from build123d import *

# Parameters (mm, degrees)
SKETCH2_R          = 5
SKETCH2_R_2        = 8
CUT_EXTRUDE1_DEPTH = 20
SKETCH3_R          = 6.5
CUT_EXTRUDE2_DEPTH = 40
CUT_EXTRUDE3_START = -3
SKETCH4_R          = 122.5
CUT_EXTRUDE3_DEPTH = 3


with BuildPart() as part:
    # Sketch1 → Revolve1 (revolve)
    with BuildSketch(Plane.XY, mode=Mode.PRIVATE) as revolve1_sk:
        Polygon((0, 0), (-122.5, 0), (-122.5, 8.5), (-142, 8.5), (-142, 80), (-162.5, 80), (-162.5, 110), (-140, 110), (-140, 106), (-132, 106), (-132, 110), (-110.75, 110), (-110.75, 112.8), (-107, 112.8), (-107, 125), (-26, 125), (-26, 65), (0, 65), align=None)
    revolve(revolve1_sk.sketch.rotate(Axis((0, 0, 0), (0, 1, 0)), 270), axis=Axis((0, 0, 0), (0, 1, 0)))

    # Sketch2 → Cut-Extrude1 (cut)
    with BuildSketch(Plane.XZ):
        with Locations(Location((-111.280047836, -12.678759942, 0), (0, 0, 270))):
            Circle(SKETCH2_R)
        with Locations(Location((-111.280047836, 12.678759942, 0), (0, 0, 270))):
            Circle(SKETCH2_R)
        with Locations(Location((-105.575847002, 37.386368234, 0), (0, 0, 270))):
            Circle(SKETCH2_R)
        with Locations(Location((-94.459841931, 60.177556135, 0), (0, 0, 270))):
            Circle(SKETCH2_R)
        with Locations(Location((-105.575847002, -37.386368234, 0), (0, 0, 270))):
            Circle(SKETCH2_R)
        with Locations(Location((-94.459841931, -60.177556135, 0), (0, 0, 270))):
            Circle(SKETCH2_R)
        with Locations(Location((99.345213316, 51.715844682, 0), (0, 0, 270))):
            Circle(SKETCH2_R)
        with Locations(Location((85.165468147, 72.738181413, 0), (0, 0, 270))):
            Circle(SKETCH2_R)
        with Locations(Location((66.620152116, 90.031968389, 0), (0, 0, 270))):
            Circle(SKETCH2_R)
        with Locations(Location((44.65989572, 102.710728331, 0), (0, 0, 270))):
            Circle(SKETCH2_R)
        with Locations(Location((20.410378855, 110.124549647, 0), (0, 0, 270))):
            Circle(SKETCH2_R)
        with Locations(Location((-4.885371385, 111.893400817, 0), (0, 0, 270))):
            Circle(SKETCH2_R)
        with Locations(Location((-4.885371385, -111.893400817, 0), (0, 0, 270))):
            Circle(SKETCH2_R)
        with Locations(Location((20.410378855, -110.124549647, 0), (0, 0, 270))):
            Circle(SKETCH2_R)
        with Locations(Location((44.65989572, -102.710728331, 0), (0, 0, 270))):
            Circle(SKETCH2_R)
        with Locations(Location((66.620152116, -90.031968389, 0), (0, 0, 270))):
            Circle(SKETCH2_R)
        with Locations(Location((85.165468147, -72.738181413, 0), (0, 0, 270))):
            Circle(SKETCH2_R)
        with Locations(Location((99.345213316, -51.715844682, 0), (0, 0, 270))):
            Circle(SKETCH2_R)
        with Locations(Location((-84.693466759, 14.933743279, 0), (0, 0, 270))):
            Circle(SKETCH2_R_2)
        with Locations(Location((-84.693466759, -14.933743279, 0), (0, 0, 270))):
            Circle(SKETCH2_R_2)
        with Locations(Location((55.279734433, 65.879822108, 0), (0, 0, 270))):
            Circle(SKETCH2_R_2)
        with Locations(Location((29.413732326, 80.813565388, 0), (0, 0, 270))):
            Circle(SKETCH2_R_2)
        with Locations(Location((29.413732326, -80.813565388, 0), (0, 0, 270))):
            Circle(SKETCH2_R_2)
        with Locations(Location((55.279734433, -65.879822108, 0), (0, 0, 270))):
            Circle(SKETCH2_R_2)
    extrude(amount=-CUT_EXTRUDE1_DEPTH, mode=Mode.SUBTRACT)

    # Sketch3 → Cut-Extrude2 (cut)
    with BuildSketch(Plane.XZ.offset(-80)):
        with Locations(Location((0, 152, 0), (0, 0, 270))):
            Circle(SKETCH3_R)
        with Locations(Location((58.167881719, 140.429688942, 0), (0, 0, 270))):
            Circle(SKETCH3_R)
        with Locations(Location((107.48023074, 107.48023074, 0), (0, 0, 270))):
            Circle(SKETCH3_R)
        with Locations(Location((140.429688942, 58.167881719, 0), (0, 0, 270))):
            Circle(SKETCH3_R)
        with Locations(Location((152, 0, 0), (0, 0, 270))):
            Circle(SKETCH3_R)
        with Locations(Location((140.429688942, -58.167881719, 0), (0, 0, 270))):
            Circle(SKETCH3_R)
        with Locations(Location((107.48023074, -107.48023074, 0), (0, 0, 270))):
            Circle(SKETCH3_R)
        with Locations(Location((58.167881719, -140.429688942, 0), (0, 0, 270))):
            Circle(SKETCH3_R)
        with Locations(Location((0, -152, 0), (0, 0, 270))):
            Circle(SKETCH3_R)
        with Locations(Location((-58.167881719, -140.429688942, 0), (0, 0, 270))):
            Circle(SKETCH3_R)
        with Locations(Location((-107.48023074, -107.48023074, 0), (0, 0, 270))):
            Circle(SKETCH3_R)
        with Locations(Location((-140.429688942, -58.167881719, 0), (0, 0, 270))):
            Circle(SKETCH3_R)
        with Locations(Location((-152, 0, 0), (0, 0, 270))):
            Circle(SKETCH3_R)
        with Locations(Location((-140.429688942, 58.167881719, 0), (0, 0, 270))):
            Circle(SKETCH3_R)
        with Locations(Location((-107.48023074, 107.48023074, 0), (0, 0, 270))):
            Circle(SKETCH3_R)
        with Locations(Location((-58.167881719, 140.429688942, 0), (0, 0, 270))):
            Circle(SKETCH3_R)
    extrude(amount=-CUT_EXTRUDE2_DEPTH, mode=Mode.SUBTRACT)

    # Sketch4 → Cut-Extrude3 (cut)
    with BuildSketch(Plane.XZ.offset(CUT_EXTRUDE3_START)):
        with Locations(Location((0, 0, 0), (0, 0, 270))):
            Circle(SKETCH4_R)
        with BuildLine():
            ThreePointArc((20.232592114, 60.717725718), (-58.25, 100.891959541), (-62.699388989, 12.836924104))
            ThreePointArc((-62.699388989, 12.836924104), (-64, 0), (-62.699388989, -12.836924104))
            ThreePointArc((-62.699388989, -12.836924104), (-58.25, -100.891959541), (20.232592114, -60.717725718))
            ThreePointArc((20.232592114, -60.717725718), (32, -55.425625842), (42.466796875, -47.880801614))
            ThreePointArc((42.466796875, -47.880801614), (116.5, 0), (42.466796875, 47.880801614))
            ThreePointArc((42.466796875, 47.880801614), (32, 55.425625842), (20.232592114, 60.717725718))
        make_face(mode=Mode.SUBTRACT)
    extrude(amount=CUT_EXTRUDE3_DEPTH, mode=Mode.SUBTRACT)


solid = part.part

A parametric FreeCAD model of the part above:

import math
import FreeCAD as App
import Part
import Sketcher

V = App.Vector

doc = App.newDocument("Part")
params = doc.addObject("Spreadsheet::Sheet", "Params")
for row, (alias, value) in enumerate([
    ("sketch1_width", "26 mm"),
    ("sketch1_width2", "81 mm"),
    ("sketch1_width3", "8 mm"),
    ("sketch1_height", "65 mm"),
    ("sketch1_height2", "60 mm"),
    ("revolution_angle", "360 deg"),
    ("sketch2_diameter", "10 mm"),
    ("sketch2_diameter2", "16 mm"),
    ("pocket1_length", "20 mm"),
    ("sketch3_diameter", "13 mm"),
    ("pocket2_length", "40 mm"),
    ("sketch4_diameter", "245 mm"),
    ("sketch4_radius", "64 mm"),
    ("sketch4_radius2", "52.5 mm"),
    ("pocket3_length", "3 mm"),
], start=1):
    params.set(f"A{row}", alias)
    params.set(f"B{row}", "=" + value)
    params.setAlias(f"B{row}", alias)

body = doc.addObject("PartDesign::Body", "Body")

# Sketch on XY plane
sketch1 = body.newObject("Sketcher::SketchObject", "Sketch")
sketch1.AttachmentSupport = (doc.getObject("XY_Plane"), [""])
sketch1.MapMode = "FlatFace"
sketch1.addGeometry(Part.LineSegment(V(-122.5, 0, 0), V(0, 0, 0)), False)
sketch1.addGeometry(Part.LineSegment(V(0, 0, 0), V(0, 65, 0)), False)
sketch1.addGeometry(Part.LineSegment(V(0, 65, 0), V(-26, 65, 0)), False)
sketch1.addGeometry(Part.LineSegment(V(-26, 65, 0), V(-26, 125, 0)), False)
sketch1.addGeometry(Part.LineSegment(V(-26, 125, 0), V(-107, 125, 0)), False)
sketch1.addGeometry(Part.LineSegment(V(-107, 125, 0), V(-107, 112.8, 0)), False)
sketch1.addGeometry(Part.LineSegment(V(-107, 112.8, 0), V(-110.75, 112.8, 0)), False)
sketch1.addGeometry(Part.LineSegment(V(-110.75, 112.8, 0), V(-110.75, 110, 0)), False)
sketch1.addGeometry(Part.LineSegment(V(-110.75, 110, 0), V(-132, 110, 0)), False)
sketch1.addGeometry(Part.LineSegment(V(-132, 110, 0), V(-132, 106, 0)), False)
sketch1.addGeometry(Part.LineSegment(V(-132, 106, 0), V(-140, 106, 0)), False)
sketch1.addGeometry(Part.LineSegment(V(-140, 106, 0), V(-140, 110, 0)), False)
sketch1.addGeometry(Part.LineSegment(V(-140, 110, 0), V(-162.5, 110, 0)), False)
sketch1.addGeometry(Part.LineSegment(V(-162.5, 110, 0), V(-162.5, 80, 0)), False)
sketch1.addGeometry(Part.LineSegment(V(-162.5, 80, 0), V(-142, 80, 0)), False)
sketch1.addGeometry(Part.LineSegment(V(-142, 80, 0), V(-142, 8.5, 0)), False)
sketch1.addGeometry(Part.LineSegment(V(-142, 8.5, 0), V(-122.5, 8.5, 0)), False)
sketch1.addGeometry(Part.LineSegment(V(-122.5, 8.5, 0), V(-122.5, 0, 0)), False)
sketch1.addConstraint(Sketcher.Constraint("Coincident", 0, 2, 1, 1))
sketch1.addConstraint(Sketcher.Constraint("Coincident", 1, 2, 2, 1))
sketch1.addConstraint(Sketcher.Constraint("Coincident", 2, 2, 3, 1))
sketch1.addConstraint(Sketcher.Constraint("Coincident", 3, 2, 4, 1))
sketch1.addConstraint(Sketcher.Constraint("Coincident", 4, 2, 5, 1))
sketch1.addConstraint(Sketcher.Constraint("Coincident", 5, 2, 6, 1))
sketch1.addConstraint(Sketcher.Constraint("Coincident", 6, 2, 7, 1))
sketch1.addConstraint(Sketcher.Constraint("Coincident", 7, 2, 8, 1))
sketch1.addConstraint(Sketcher.Constraint("Coincident", 8, 2, 9, 1))
sketch1.addConstraint(Sketcher.Constraint("Coincident", 9, 2, 10, 1))
sketch1.addConstraint(Sketcher.Constraint("Coincident", 10, 2, 11, 1))
sketch1.addConstraint(Sketcher.Constraint("Coincident", 11, 2, 12, 1))
sketch1.addConstraint(Sketcher.Constraint("Coincident", 12, 2, 13, 1))
sketch1.addConstraint(Sketcher.Constraint("Coincident", 13, 2, 14, 1))
sketch1.addConstraint(Sketcher.Constraint("Coincident", 14, 2, 15, 1))
sketch1.addConstraint(Sketcher.Constraint("Coincident", 15, 2, 16, 1))
sketch1.addConstraint(Sketcher.Constraint("Coincident", 16, 2, 17, 1))
sketch1.addConstraint(Sketcher.Constraint("Coincident", 17, 2, 0, 1))
sketch1.addConstraint(Sketcher.Constraint("Horizontal", 0))
sketch1.addConstraint(Sketcher.Constraint("Vertical", 1))
sketch1.addConstraint(Sketcher.Constraint("Horizontal", 2))
sketch1.addConstraint(Sketcher.Constraint("Vertical", 3))
sketch1.addConstraint(Sketcher.Constraint("Horizontal", 4))
sketch1.addConstraint(Sketcher.Constraint("Vertical", 5))
sketch1.addConstraint(Sketcher.Constraint("Horizontal", 6))
sketch1.addConstraint(Sketcher.Constraint("Vertical", 7))
sketch1.addConstraint(Sketcher.Constraint("Horizontal", 8))
sketch1.addConstraint(Sketcher.Constraint("Vertical", 9))
sketch1.addConstraint(Sketcher.Constraint("Horizontal", 10))
sketch1.addConstraint(Sketcher.Constraint("Vertical", 11))
sketch1.addConstraint(Sketcher.Constraint("Horizontal", 12))
sketch1.addConstraint(Sketcher.Constraint("Vertical", 13))
sketch1.addConstraint(Sketcher.Constraint("Horizontal", 14))
sketch1.addConstraint(Sketcher.Constraint("Vertical", 15))
sketch1.addConstraint(Sketcher.Constraint("Horizontal", 16))
sketch1.addConstraint(Sketcher.Constraint("Vertical", 17))
sketch1.addConstraint(Sketcher.Constraint("Coincident", 0, 2, -1, 1))
sketch1.addConstraint(Sketcher.Constraint("Horizontal", 8, 2, 11, 2))
sketch1.addConstraint(Sketcher.Constraint("DistanceX", 2, 2, 2, 1, 26.0))
sketch1.addConstraint(Sketcher.Constraint("DistanceX", 4, 2, 4, 1, 81.0))
sketch1.addConstraint(Sketcher.Constraint("DistanceX", 10, 2, 10, 1, 8.0))
sketch1.addConstraint(Sketcher.Constraint("DistanceY", 1, 1, 1, 2, 65.0))
sketch1.addConstraint(Sketcher.Constraint("DistanceY", 3, 1, 3, 2, 60.0))
sketch1.addConstraint(Sketcher.Constraint("DistanceY", 9, 2, 9, 1, 4.0))
sketch1.addConstraint(Sketcher.Constraint("DistanceY", 13, 2, 13, 1, 30.0))
sketch1.addConstraint(Sketcher.Constraint("DistanceX", 0, 1, 0, 2, 122.5))
sketch1.addConstraint(Sketcher.Constraint("DistanceX", 12, 2, 12, 1, 22.5))
sketch1.addConstraint(Sketcher.Constraint("DistanceX", 14, 1, 14, 2, 20.5))
sketch1.addConstraint(Sketcher.Constraint("DistanceX", 16, 1, 16, 2, 19.5))
sketch1.addConstraint(Sketcher.Constraint("DistanceY", 5, 2, 5, 1, 12.2))
sketch1.addConstraint(Sketcher.Constraint("DistanceY", 7, 2, 7, 1, 2.8))
sketch1.addConstraint(Sketcher.Constraint("DistanceY", 15, 2, 15, 1, 71.5))
sketch1.addConstraint(Sketcher.Constraint("DistanceX", 6, 2, 6, 1, 3.75))
sketch1.setExpression("Constraints[38]", "Params.sketch1_width")
sketch1.setExpression("Constraints[39]", "Params.sketch1_width2")
sketch1.setExpression("Constraints[40]", "Params.sketch1_width3")
sketch1.setExpression("Constraints[41]", "Params.sketch1_height")
sketch1.setExpression("Constraints[42]", "Params.sketch1_height2")
revolution = body.newObject("PartDesign::Revolution", "Revolution")
revolution.Profile = sketch1
revolution.ReferenceAxis = (sketch1, ["V_Axis"])
revolution.setExpression("Angle", "Params.revolution_angle")

# Sketch on XZ plane
sketch2 = body.newObject("Sketcher::SketchObject", "Sketch001")
sketch2.AttachmentSupport = (doc.getObject("XZ_Plane"), [""])
sketch2.MapMode = "FlatFace"
sketch2.addGeometry(Part.Circle(V(-111.280048, -12.67876, 0), V(0, 0, 1), 5), False)
sketch2.addGeometry(Part.Circle(V(-111.280048, 12.67876, 0), V(0, 0, 1), 5), False)
sketch2.addGeometry(Part.Circle(V(-105.575847, 37.386368, 0), V(0, 0, 1), 5), False)
sketch2.addGeometry(Part.Circle(V(-94.459842, 60.177556, 0), V(0, 0, 1), 5), False)
sketch2.addGeometry(Part.Circle(V(-105.575847, -37.386368, 0), V(0, 0, 1), 5), False)
sketch2.addGeometry(Part.Circle(V(-94.459842, -60.177556, 0), V(0, 0, 1), 5), False)
sketch2.addGeometry(Part.Circle(V(99.345213, 51.715845, 0), V(0, 0, 1), 5), False)
sketch2.addGeometry(Part.Circle(V(85.165468, 72.738181, 0), V(0, 0, 1), 5), False)
sketch2.addGeometry(Part.Circle(V(66.620152, 90.031968, 0), V(0, 0, 1), 5), False)
sketch2.addGeometry(Part.Circle(V(44.659896, 102.710728, 0), V(0, 0, 1), 5), False)
sketch2.addGeometry(Part.Circle(V(20.410379, 110.12455, 0), V(0, 0, 1), 5), False)
sketch2.addGeometry(Part.Circle(V(-4.885371, 111.893401, 0), V(0, 0, 1), 5), False)
sketch2.addGeometry(Part.Circle(V(-4.885371, -111.893401, 0), V(0, 0, 1), 5), False)
sketch2.addGeometry(Part.Circle(V(20.410379, -110.12455, 0), V(0, 0, 1), 5), False)
sketch2.addGeometry(Part.Circle(V(44.659896, -102.710728, 0), V(0, 0, 1), 5), False)
sketch2.addGeometry(Part.Circle(V(66.620152, -90.031968, 0), V(0, 0, 1), 5), False)
sketch2.addGeometry(Part.Circle(V(85.165468, -72.738181, 0), V(0, 0, 1), 5), False)
sketch2.addGeometry(Part.Circle(V(99.345213, -51.715845, 0), V(0, 0, 1), 5), False)
sketch2.addGeometry(Part.Circle(V(-84.693467, 14.933743, 0), V(0, 0, 1), 8), False)
sketch2.addGeometry(Part.Circle(V(-84.693467, -14.933743, 0), V(0, 0, 1), 8), False)
sketch2.addGeometry(Part.Circle(V(55.279734, 65.879822, 0), V(0, 0, 1), 8), False)
sketch2.addGeometry(Part.Circle(V(29.413732, 80.813565, 0), V(0, 0, 1), 8), False)
sketch2.addGeometry(Part.Circle(V(29.413732, -80.813565, 0), V(0, 0, 1), 8), False)
sketch2.addGeometry(Part.Circle(V(55.279734, -65.879822, 0), V(0, 0, 1), 8), False)
sketch2.addConstraint(Sketcher.Constraint("Equal", 0, 1))
sketch2.addConstraint(Sketcher.Constraint("Equal", 1, 2))
sketch2.addConstraint(Sketcher.Constraint("Equal", 2, 3))
sketch2.addConstraint(Sketcher.Constraint("Equal", 3, 4))
sketch2.addConstraint(Sketcher.Constraint("Equal", 4, 5))
sketch2.addConstraint(Sketcher.Constraint("Equal", 5, 6))
sketch2.addConstraint(Sketcher.Constraint("Equal", 6, 7))
sketch2.addConstraint(Sketcher.Constraint("Equal", 7, 8))
sketch2.addConstraint(Sketcher.Constraint("Equal", 8, 9))
sketch2.addConstraint(Sketcher.Constraint("Equal", 9, 10))
sketch2.addConstraint(Sketcher.Constraint("Equal", 10, 11))
sketch2.addConstraint(Sketcher.Constraint("Equal", 11, 12))
sketch2.addConstraint(Sketcher.Constraint("Equal", 12, 13))
sketch2.addConstraint(Sketcher.Constraint("Equal", 13, 14))
sketch2.addConstraint(Sketcher.Constraint("Equal", 14, 15))
sketch2.addConstraint(Sketcher.Constraint("Equal", 15, 16))
sketch2.addConstraint(Sketcher.Constraint("Equal", 16, 17))
sketch2.addConstraint(Sketcher.Constraint("Equal", 18, 19))
sketch2.addConstraint(Sketcher.Constraint("Equal", 19, 20))
sketch2.addConstraint(Sketcher.Constraint("Equal", 20, 21))
sketch2.addConstraint(Sketcher.Constraint("Equal", 21, 22))
sketch2.addConstraint(Sketcher.Constraint("Equal", 22, 23))
sketch2.addConstraint(Sketcher.Constraint("Symmetric", 0, 3, 1, 3, -1))
sketch2.addConstraint(Sketcher.Constraint("Symmetric", 2, 3, 4, 3, -1))
sketch2.addConstraint(Sketcher.Constraint("Symmetric", 3, 3, 5, 3, -1))
sketch2.addConstraint(Sketcher.Constraint("Symmetric", 11, 3, 12, 3, -1))
sketch2.addConstraint(Sketcher.Constraint("Symmetric", 10, 3, 13, 3, -1))
sketch2.addConstraint(Sketcher.Constraint("Symmetric", 9, 3, 14, 3, -1))
sketch2.addConstraint(Sketcher.Constraint("Symmetric", 8, 3, 15, 3, -1))
sketch2.addConstraint(Sketcher.Constraint("Symmetric", 7, 3, 16, 3, -1))
sketch2.addConstraint(Sketcher.Constraint("Symmetric", 6, 3, 17, 3, -1))
sketch2.addConstraint(Sketcher.Constraint("Symmetric", 18, 3, 19, 3, -1))
sketch2.addConstraint(Sketcher.Constraint("Symmetric", 21, 3, 22, 3, -1))
sketch2.addConstraint(Sketcher.Constraint("Symmetric", 20, 3, 23, 3, -1))
sketch2.addConstraint(Sketcher.Constraint("Diameter", 0, 10.0))
sketch2.addConstraint(Sketcher.Constraint("Diameter", 18, 16.0))
sketch2.addConstraint(Sketcher.Constraint("DistanceX", 2, 3, 8, 3, 172.195999))
sketch2.addConstraint(Sketcher.Constraint("DistanceY", -1, 1, 11, 3, 111.893401))
sketch2.addConstraint(Sketcher.Constraint("DistanceX", 1, 3, 2, 3, 5.704201))
sketch2.addConstraint(Sketcher.Constraint("DistanceY", 2, 3, 8, 3, 52.6456))
sketch2.addConstraint(Sketcher.Constraint("DistanceY", 0, 3, -1, 1, 12.67876))
sketch2.addConstraint(Sketcher.Constraint("DistanceY", -1, 1, 2, 3, 37.386368))
sketch2.addConstraint(Sketcher.Constraint("DistanceX", 3, 3, -1, 1, 94.459842))
sketch2.addConstraint(Sketcher.Constraint("DistanceX", -1, 1, 7, 3, 85.165468))
sketch2.addConstraint(Sketcher.Constraint("DistanceY", -1, 1, 7, 3, 72.738181))
sketch2.addConstraint(Sketcher.Constraint("DistanceY", -1, 1, 9, 3, 102.710728))
sketch2.addConstraint(Sketcher.Constraint("DistanceX", -1, 1, 10, 3, 20.410379))
sketch2.addConstraint(Sketcher.Constraint("DistanceY", -1, 1, 10, 3, 110.12455))
sketch2.addConstraint(Sketcher.Constraint("DistanceX", 11, 3, -1, 1, 4.885371))
sketch2.addConstraint(Sketcher.Constraint("DistanceY", 6, 3, 3, 3, 8.461711))
sketch2.addConstraint(Sketcher.Constraint("DistanceX", 2, 3, 6, 3, 204.92106))
sketch2.addConstraint(Sketcher.Constraint("DistanceY", 17, 3, 6, 3, 103.431689))
sketch2.addConstraint(Sketcher.Constraint("DistanceX", 1, 3, 18, 3, 26.586581))
sketch2.addConstraint(Sketcher.Constraint("DistanceY", 4, 3, 18, 3, 52.320112))
sketch2.addConstraint(Sketcher.Constraint("DistanceY", 20, 3, 7, 3, 6.858359))
sketch2.addConstraint(Sketcher.Constraint("DistanceX", 9, 3, 20, 3, 10.619839))
sketch2.addConstraint(Sketcher.Constraint("DistanceX", 20, 3, 6, 3, 44.065479))
sketch2.addConstraint(Sketcher.Constraint("DistanceX", 21, 3, 8, 3, 37.20642))
sketch2.addConstraint(Sketcher.Constraint("DistanceX", 0, 3, -1, 1, 111.280048))
sketch2.addConstraint(Sketcher.Constraint("DistanceY", -1, 1, 21, 3, 80.813565))
sketch2.setExpression("Constraints[34]", "Params.sketch2_diameter")
sketch2.setExpression("Constraints[35]", "Params.sketch2_diameter2")
pocket1 = body.newObject("PartDesign::Pocket", "Pocket")
pocket1.Profile = sketch2
pocket1.setExpression("Length", "Params.pocket1_length")

# Sketch on XZ plane
sketch3 = body.newObject("Sketcher::SketchObject", "Sketch002")
sketch3.AttachmentSupport = (doc.getObject("XZ_Plane"), [""])
sketch3.MapMode = "FlatFace"
sketch3.AttachmentOffset = App.Placement(V(0, 0, -80), App.Rotation())
sketch3.addGeometry(Part.Circle(V(0, 152, 0), V(0, 0, 1), 6.5), False)
sketch3.addGeometry(Part.Circle(V(58.167882, 140.429689, 0), V(0, 0, 1), 6.5), False)
sketch3.addGeometry(Part.Circle(V(107.480231, 107.480231, 0), V(0, 0, 1), 6.5), False)
sketch3.addGeometry(Part.Circle(V(140.429689, 58.167882, 0), V(0, 0, 1), 6.5), False)
sketch3.addGeometry(Part.Circle(V(152, 0, 0), V(0, 0, 1), 6.5), False)
sketch3.addGeometry(Part.Circle(V(140.429689, -58.167882, 0), V(0, 0, 1), 6.5), False)
sketch3.addGeometry(Part.Circle(V(107.480231, -107.480231, 0), V(0, 0, 1), 6.5), False)
sketch3.addGeometry(Part.Circle(V(58.167882, -140.429689, 0), V(0, 0, 1), 6.5), False)
sketch3.addGeometry(Part.Circle(V(0, -152, 0), V(0, 0, 1), 6.5), False)
sketch3.addGeometry(Part.Circle(V(-58.167882, -140.429689, 0), V(0, 0, 1), 6.5), False)
sketch3.addGeometry(Part.Circle(V(-107.480231, -107.480231, 0), V(0, 0, 1), 6.5), False)
sketch3.addGeometry(Part.Circle(V(-140.429689, -58.167882, 0), V(0, 0, 1), 6.5), False)
sketch3.addGeometry(Part.Circle(V(-152, 0, 0), V(0, 0, 1), 6.5), False)
sketch3.addGeometry(Part.Circle(V(-140.429689, 58.167882, 0), V(0, 0, 1), 6.5), False)
sketch3.addGeometry(Part.Circle(V(-107.480231, 107.480231, 0), V(0, 0, 1), 6.5), False)
sketch3.addGeometry(Part.Circle(V(-58.167882, 140.429689, 0), V(0, 0, 1), 6.5), False)
sketch3.addConstraint(Sketcher.Constraint("Equal", 0, 1))
sketch3.addConstraint(Sketcher.Constraint("Equal", 1, 2))
sketch3.addConstraint(Sketcher.Constraint("Equal", 2, 3))
sketch3.addConstraint(Sketcher.Constraint("Equal", 3, 4))
sketch3.addConstraint(Sketcher.Constraint("Equal", 4, 5))
sketch3.addConstraint(Sketcher.Constraint("Equal", 5, 6))
sketch3.addConstraint(Sketcher.Constraint("Equal", 6, 7))
sketch3.addConstraint(Sketcher.Constraint("Equal", 7, 8))
sketch3.addConstraint(Sketcher.Constraint("Equal", 8, 9))
sketch3.addConstraint(Sketcher.Constraint("Equal", 9, 10))
sketch3.addConstraint(Sketcher.Constraint("Equal", 10, 11))
sketch3.addConstraint(Sketcher.Constraint("Equal", 11, 12))
sketch3.addConstraint(Sketcher.Constraint("Equal", 12, 13))
sketch3.addConstraint(Sketcher.Constraint("Equal", 13, 14))
sketch3.addConstraint(Sketcher.Constraint("Equal", 14, 15))
sketch3.addConstraint(Sketcher.Constraint("Symmetric", 0, 3, 8, 3, -1, 1))
sketch3.addConstraint(Sketcher.Constraint("Symmetric", 1, 3, 9, 3, -1, 1))
sketch3.addConstraint(Sketcher.Constraint("Symmetric", 2, 3, 10, 3, -1, 1))
sketch3.addConstraint(Sketcher.Constraint("Symmetric", 3, 3, 11, 3, -1, 1))
sketch3.addConstraint(Sketcher.Constraint("Symmetric", 4, 3, 12, 3, -1, 1))
sketch3.addConstraint(Sketcher.Constraint("Symmetric", 5, 3, 13, 3, -1, 1))
sketch3.addConstraint(Sketcher.Constraint("Symmetric", 6, 3, 14, 3, -1, 1))
sketch3.addConstraint(Sketcher.Constraint("Symmetric", 7, 3, 15, 3, -1, 1))
sketch3.addConstraint(Sketcher.Constraint("Symmetric", 7, 3, 9, 3, -2))
sketch3.addConstraint(Sketcher.Constraint("Symmetric", 6, 3, 10, 3, -2))
sketch3.addConstraint(Sketcher.Constraint("Symmetric", 5, 3, 11, 3, -2))
sketch3.addConstraint(Sketcher.Constraint("PointOnObject", 0, 3, -2))
sketch3.addConstraint(Sketcher.Constraint("PointOnObject", 4, 3, -1))
sketch3.addConstraint(Sketcher.Constraint("Diameter", 0, 13.0))
sketch3.addConstraint(Sketcher.Constraint("DistanceY", -1, 1, 0, 3, 152.0))
sketch3.addConstraint(Sketcher.Constraint("DistanceX", -1, 1, 4, 3, 152.0))
sketch3.addConstraint(Sketcher.Constraint("DistanceX", -1, 1, 1, 3, 58.167882))
sketch3.addConstraint(Sketcher.Constraint("DistanceY", -1, 1, 1, 3, 140.429689))
sketch3.addConstraint(Sketcher.Constraint("DistanceX", -1, 1, 2, 3, 107.480231))
sketch3.addConstraint(Sketcher.Constraint("DistanceY", -1, 1, 2, 3, 107.480231))
sketch3.addConstraint(Sketcher.Constraint("DistanceX", -1, 1, 3, 3, 140.429689))
sketch3.addConstraint(Sketcher.Constraint("DistanceY", -1, 1, 3, 3, 58.167882))
sketch3.setExpression("Constraints[28]", "Params.sketch3_diameter")
pocket2 = body.newObject("PartDesign::Pocket", "Pocket001")
pocket2.Profile = sketch3
pocket2.setExpression("Length", "Params.pocket2_length")

# Sketch on XZ plane
sketch4 = body.newObject("Sketcher::SketchObject", "Sketch003")
sketch4.AttachmentSupport = (doc.getObject("XZ_Plane"), [""])
sketch4.MapMode = "FlatFace"
sketch4.AttachmentOffset = App.Placement(V(0, 0, -3), App.Rotation())
sketch4.addGeometry(Part.Circle(V(0, 0, 0), V(0, 0, 1), 122.5), False)
sketch4.addGeometry(Part.ArcOfCircle(Part.Circle(V(-32, 55.425626, 0), V(0, 0, 1), 52.5), math.radians(5.785349), math.radians(234.214651)), False)
sketch4.addGeometry(Part.ArcOfCircle(Part.Circle(V(0, 0, 0), V(0, 0, 1), 64), math.radians(48.429301), math.radians(71.570699)), False)
sketch4.addGeometry(Part.ArcOfCircle(Part.Circle(V(64, 0, 0), V(0, 0, 1), 52.5), math.radians(-114.214651), math.radians(114.214651)), False)
sketch4.addGeometry(Part.ArcOfCircle(Part.Circle(V(0, 0, 0), V(0, 0, 1), 64), math.radians(-71.570699), math.radians(-48.429301)), False)
sketch4.addGeometry(Part.ArcOfCircle(Part.Circle(V(-32, -55.425626, 0), V(0, 0, 1), 52.5), math.radians(125.785349), math.radians(354.214651)), False)
sketch4.addGeometry(Part.ArcOfCircle(Part.Circle(V(0, 0, 0), V(0, 0, 1), 64), math.radians(168.429301), math.radians(191.570699)), False)
sketch4.addConstraint(Sketcher.Constraint("Coincident", 1, 1, 2, 2))
sketch4.addConstraint(Sketcher.Constraint("Coincident", 2, 1, 3, 2))
sketch4.addConstraint(Sketcher.Constraint("Coincident", 3, 1, 4, 2))
sketch4.addConstraint(Sketcher.Constraint("Coincident", 4, 1, 5, 2))
sketch4.addConstraint(Sketcher.Constraint("Coincident", 5, 1, 6, 2))
sketch4.addConstraint(Sketcher.Constraint("Coincident", 6, 1, 1, 2))
sketch4.addConstraint(Sketcher.Constraint("Coincident", 0, 3, -1, 1))
sketch4.addConstraint(Sketcher.Constraint("Coincident", 2, 3, -1, 1))
sketch4.addConstraint(Sketcher.Constraint("Coincident", 4, 3, -1, 1))
sketch4.addConstraint(Sketcher.Constraint("Coincident", 6, 3, -1, 1))
sketch4.addConstraint(Sketcher.Constraint("Equal", 1, 3))
sketch4.addConstraint(Sketcher.Constraint("Equal", 2, 4))
sketch4.addConstraint(Sketcher.Constraint("Equal", 3, 5))
sketch4.addConstraint(Sketcher.Constraint("Equal", 4, 6))
sketch4.addConstraint(Sketcher.Constraint("Symmetric", 1, 3, 5, 3, -1))
sketch4.addConstraint(Sketcher.Constraint("PointOnObject", 3, 3, -1))
sketch4.addConstraint(Sketcher.Constraint("Diameter", 0, 245.0))
sketch4.addConstraint(Sketcher.Constraint("Radius", 2, 64.0))
sketch4.addConstraint(Sketcher.Constraint("Radius", 1, 52.5))
sketch4.addConstraint(Sketcher.Constraint("DistanceX", 1, 3, -1, 1, 32.0))
sketch4.addConstraint(Sketcher.Constraint("DistanceX", -1, 1, 3, 3, 64.0))
sketch4.addConstraint(Sketcher.Constraint("DistanceY", 1, 3, 1, 1, 5.2921))
sketch4.setExpression("Constraints[16]", "Params.sketch4_diameter")
sketch4.setExpression("Constraints[17]", "Params.sketch4_radius")
sketch4.setExpression("Constraints[18]", "Params.sketch4_radius2")
pocket3 = body.newObject("PartDesign::Pocket", "Pocket002")
pocket3.Profile = sketch4
pocket3.setExpression("Length", "Params.pocket3_length")
pocket3.Reversed = True

doc.recompute()
